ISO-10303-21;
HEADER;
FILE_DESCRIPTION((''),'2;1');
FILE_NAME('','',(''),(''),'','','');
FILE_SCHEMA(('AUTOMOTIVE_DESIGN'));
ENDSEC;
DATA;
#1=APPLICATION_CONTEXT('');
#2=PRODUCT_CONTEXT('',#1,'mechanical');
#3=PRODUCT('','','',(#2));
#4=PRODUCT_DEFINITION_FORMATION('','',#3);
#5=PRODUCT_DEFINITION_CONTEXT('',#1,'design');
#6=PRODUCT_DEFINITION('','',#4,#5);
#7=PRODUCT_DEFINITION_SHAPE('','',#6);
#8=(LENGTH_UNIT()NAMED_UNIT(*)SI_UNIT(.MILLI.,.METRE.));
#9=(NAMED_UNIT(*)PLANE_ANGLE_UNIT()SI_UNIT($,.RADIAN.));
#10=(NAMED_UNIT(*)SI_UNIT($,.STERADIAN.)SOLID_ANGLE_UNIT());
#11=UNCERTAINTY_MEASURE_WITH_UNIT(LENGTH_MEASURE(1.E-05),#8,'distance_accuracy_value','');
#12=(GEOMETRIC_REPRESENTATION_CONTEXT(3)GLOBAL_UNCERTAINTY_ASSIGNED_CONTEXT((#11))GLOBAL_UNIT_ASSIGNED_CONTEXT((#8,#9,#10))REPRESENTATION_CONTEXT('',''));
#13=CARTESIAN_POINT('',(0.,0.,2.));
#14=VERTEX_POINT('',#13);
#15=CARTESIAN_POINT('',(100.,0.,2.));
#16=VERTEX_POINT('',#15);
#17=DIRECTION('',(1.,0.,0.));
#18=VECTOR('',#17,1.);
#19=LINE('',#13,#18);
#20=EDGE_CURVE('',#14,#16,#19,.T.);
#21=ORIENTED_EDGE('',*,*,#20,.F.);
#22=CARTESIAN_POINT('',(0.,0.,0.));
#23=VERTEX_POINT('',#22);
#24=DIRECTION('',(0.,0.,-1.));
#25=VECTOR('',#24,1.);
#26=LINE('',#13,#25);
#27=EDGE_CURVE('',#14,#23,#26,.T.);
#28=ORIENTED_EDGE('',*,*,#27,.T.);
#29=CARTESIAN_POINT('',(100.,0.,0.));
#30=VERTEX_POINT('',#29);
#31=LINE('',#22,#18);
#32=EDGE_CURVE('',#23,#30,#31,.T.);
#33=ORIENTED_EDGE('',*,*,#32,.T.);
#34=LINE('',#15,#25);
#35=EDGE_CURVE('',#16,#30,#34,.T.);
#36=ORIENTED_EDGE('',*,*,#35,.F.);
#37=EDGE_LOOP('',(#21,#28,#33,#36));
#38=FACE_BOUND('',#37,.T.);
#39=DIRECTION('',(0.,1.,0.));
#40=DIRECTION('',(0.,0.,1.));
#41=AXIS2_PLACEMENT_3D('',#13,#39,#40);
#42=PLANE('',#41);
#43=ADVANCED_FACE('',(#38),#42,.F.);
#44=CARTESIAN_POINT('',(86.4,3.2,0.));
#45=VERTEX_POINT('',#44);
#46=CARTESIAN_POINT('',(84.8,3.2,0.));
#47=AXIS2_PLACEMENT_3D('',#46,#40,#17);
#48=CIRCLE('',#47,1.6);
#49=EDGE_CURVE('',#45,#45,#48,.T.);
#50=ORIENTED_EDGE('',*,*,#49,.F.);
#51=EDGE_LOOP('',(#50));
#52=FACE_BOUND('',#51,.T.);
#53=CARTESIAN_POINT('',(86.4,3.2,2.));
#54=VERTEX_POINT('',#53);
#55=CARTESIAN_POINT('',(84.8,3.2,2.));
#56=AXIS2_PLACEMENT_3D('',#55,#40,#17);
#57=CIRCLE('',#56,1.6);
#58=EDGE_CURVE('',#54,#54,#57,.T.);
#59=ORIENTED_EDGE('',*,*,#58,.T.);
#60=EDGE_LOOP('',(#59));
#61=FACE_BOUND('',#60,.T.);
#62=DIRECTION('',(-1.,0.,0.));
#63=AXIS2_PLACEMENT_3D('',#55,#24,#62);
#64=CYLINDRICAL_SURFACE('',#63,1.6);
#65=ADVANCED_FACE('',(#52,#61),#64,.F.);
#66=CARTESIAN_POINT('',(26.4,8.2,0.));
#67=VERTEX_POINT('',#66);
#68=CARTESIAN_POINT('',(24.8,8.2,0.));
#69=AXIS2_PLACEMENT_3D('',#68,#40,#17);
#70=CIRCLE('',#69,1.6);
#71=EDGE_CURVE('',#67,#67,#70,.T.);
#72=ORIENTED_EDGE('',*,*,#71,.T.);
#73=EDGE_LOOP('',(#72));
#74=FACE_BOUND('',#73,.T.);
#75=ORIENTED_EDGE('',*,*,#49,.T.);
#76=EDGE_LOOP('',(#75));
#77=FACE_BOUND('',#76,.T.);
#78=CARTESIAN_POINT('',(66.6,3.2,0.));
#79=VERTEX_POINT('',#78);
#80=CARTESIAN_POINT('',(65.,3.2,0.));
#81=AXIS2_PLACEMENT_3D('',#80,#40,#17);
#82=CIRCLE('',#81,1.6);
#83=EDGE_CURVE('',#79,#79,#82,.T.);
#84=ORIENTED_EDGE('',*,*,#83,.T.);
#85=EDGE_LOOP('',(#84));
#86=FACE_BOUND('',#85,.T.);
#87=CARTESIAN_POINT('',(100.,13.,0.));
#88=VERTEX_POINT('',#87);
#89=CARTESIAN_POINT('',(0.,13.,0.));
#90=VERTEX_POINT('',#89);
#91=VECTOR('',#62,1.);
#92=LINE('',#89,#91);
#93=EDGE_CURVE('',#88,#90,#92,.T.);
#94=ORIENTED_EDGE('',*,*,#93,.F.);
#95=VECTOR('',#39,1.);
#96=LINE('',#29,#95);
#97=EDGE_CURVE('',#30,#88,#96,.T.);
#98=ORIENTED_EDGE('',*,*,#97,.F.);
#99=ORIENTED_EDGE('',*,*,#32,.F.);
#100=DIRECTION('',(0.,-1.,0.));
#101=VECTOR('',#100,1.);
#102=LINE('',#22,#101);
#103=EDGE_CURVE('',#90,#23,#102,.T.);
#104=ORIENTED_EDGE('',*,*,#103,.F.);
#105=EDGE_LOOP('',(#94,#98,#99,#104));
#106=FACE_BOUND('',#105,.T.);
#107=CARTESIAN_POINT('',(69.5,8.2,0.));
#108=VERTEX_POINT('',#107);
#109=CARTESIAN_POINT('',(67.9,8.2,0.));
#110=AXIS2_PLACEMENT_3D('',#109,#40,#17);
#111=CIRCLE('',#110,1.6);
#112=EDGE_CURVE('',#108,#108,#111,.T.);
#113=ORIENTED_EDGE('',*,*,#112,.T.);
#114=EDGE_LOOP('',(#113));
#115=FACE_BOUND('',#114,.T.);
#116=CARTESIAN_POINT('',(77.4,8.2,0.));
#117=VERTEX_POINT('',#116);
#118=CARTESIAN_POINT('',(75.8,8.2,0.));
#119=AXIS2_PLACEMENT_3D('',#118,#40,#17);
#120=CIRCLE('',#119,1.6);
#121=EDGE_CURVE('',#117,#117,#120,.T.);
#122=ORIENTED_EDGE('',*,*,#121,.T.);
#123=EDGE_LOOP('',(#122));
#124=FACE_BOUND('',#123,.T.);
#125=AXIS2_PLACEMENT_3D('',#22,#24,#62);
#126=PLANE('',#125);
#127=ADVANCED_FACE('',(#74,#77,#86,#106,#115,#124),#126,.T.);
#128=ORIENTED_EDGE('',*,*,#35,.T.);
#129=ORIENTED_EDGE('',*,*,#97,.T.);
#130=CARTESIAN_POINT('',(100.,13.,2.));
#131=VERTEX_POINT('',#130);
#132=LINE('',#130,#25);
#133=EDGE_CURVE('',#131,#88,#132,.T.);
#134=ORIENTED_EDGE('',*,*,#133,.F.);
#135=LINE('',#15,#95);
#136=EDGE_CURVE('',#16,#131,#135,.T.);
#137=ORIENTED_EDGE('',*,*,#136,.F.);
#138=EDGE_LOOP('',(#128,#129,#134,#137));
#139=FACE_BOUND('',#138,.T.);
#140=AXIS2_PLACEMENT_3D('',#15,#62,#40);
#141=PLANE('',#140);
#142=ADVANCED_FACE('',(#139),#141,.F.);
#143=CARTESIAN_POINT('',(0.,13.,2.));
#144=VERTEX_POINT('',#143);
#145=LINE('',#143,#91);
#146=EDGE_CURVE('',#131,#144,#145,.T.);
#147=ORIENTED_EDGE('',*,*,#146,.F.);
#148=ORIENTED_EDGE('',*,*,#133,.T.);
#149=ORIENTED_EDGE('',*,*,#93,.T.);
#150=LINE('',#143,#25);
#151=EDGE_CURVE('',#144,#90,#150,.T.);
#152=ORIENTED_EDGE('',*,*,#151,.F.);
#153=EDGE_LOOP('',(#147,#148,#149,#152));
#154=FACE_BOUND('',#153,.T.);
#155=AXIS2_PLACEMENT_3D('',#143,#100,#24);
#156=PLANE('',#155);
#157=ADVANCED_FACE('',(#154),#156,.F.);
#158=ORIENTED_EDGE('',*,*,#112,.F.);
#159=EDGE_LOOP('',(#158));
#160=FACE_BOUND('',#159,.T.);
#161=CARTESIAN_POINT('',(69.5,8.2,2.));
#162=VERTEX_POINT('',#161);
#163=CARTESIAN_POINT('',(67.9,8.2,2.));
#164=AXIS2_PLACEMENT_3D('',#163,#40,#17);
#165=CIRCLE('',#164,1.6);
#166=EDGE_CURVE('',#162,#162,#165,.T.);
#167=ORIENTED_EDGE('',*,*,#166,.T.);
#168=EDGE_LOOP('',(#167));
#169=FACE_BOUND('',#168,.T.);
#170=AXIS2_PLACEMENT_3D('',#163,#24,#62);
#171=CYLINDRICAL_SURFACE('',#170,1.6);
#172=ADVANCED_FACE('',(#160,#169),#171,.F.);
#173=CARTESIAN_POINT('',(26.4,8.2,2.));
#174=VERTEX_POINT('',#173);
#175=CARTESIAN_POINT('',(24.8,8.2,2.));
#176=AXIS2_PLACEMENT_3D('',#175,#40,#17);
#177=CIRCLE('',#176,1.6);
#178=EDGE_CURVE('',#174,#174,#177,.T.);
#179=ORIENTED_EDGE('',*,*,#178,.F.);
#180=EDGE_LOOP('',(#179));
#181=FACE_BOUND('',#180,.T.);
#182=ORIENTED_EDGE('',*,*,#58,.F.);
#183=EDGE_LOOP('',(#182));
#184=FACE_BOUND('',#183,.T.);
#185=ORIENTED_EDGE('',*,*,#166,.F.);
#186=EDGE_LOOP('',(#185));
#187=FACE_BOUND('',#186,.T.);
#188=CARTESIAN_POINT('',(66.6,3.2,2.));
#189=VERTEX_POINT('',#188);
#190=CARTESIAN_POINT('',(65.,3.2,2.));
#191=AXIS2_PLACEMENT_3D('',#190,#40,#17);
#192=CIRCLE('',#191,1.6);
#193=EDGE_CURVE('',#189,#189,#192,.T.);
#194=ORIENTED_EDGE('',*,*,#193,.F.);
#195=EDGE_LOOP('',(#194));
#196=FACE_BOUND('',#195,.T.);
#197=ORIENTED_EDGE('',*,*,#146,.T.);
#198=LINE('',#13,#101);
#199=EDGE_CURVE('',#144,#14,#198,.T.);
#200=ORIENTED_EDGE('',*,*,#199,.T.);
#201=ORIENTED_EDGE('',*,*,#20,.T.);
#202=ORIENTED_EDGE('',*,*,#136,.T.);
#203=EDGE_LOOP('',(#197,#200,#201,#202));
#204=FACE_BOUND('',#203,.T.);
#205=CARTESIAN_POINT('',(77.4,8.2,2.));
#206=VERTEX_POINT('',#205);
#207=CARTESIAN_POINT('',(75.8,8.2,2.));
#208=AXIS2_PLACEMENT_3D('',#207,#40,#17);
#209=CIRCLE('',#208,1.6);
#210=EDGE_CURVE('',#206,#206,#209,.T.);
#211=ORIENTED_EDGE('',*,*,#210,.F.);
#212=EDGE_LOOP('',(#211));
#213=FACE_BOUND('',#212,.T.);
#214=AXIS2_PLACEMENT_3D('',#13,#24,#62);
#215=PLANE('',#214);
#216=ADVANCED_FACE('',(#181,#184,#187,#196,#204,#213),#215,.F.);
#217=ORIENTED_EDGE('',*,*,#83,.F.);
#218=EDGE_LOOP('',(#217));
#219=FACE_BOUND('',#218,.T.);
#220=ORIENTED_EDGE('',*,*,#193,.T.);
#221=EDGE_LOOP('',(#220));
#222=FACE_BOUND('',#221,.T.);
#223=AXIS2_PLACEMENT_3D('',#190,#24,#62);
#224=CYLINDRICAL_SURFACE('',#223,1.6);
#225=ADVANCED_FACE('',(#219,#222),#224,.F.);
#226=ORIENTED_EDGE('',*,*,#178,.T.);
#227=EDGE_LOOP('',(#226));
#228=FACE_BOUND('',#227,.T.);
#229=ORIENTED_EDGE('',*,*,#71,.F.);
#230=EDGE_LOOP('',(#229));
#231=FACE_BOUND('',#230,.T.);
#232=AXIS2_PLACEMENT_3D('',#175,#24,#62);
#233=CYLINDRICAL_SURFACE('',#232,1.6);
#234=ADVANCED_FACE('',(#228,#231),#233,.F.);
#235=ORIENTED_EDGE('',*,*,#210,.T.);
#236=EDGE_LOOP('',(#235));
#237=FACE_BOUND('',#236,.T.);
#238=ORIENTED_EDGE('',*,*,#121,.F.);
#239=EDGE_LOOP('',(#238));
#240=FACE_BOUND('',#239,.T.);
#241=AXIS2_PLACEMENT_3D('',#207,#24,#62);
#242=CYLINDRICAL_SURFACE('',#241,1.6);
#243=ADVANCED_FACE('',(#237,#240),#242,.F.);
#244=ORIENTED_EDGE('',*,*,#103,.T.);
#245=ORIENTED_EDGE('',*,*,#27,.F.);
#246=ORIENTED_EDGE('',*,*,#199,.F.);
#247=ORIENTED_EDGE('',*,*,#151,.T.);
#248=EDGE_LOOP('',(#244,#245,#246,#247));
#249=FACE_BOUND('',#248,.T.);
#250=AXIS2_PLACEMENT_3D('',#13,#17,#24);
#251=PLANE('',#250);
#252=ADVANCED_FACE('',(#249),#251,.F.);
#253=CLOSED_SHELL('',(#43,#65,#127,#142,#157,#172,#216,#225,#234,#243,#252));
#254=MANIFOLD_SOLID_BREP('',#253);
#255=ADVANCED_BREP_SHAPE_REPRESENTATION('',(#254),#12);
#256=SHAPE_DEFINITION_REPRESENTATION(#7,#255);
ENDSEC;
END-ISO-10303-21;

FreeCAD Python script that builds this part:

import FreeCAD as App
import Part
import Sketcher
from FreeCAD import Vector
Q = App.Units.Quantity

doc = App.newDocument("Part")
body = doc.addObject("PartDesign::Body", "Body")

# Sketch on XY plane
sketch1 = doc.addObject("Sketcher::SketchObject", "Sketch")
body.addObject(sketch1)
sketch1.AttachmentSupport = (doc.XY_Plane, [""])
sketch1.MapMode = "FlatFace"
sketch1.addGeometry(Part.LineSegment(Vector(0, 13, 0), Vector(0, 0, 0)), False)
sketch1.addGeometry(Part.LineSegment(Vector(0, 0, 0), Vector(100, 0, 0)), False)
sketch1.addGeometry(Part.LineSegment(Vector(100, 0, 0), Vector(100, 13, 0)), False)
sketch1.addGeometry(Part.LineSegment(Vector(100, 13, 0), Vector(0, 13, 0)), False)
sketch1.addGeometry(Part.Circle(Vector(65, 3.2, 0), Vector(0, 0, 1), 1.6), False)
sketch1.addGeometry(Part.Circle(Vector(84.8, 3.2, 0), Vector(0, 0, 1), 1.6), False)
sketch1.addGeometry(Part.Circle(Vector(24.8, 8.2, 0), Vector(0, 0, 1), 1.6), False)
sketch1.addGeometry(Part.Circle(Vector(67.9, 8.2, 0), Vector(0, 0, 1), 1.6), False)
sketch1.addGeometry(Part.Circle(Vector(75.8, 8.2, 0), Vector(0, 0, 1), 1.6), False)
sketch1.addConstraint(Sketcher.Constraint("Coincident", 0, 2, 1, 1))
sketch1.addConstraint(Sketcher.Constraint("Coincident", 1, 2, 2, 1))
sketch1.addConstraint(Sketcher.Constraint("Coincident", 2, 2, 3, 1))
sketch1.addConstraint(Sketcher.Constraint("Coincident", 3, 2, 0, 1))
sketch1.addConstraint(Sketcher.Constraint("Vertical", 0))
sketch1.addConstraint(Sketcher.Constraint("Horizontal", 1))
sketch1.addConstraint(Sketcher.Constraint("Vertical", 2))
sketch1.addConstraint(Sketcher.Constraint("Horizontal", 3))
sketch1.addConstraint(Sketcher.Constraint("Coincident", 0, 2, -1, 1))
sketch1.addConstraint(Sketcher.Constraint("Equal", 4, 5))
sketch1.addConstraint(Sketcher.Constraint("Equal", 5, 6))
sketch1.addConstraint(Sketcher.Constraint("Equal", 6, 7))
sketch1.addConstraint(Sketcher.Constraint("Equal", 7, 8))
sketch1.addConstraint(Sketcher.Constraint("Horizontal", 4, 3, 5, 3))
sketch1.addConstraint(Sketcher.Constraint("Horizontal", 6, 3, 7, 3))
sketch1.addConstraint(Sketcher.Constraint("Horizontal", 7, 3, 8, 3))
sketch1.addConstraint(Sketcher.Constraint("Diameter", 4, Q("3.2 mm")))
sketch1.addConstraint(Sketcher.Constraint("DistanceX", 1, 1, 1, 2, Q("100 mm")))
sketch1.addConstraint(Sketcher.Constraint("DistanceY", 0, 2, 0, 1, Q("13 mm")))
sketch1.addConstraint(Sketcher.Constraint("DistanceX", -1, 1, 4, 3, Q("65 mm")))
sketch1.addConstraint(Sketcher.Constraint("DistanceY", 4, 3, 6, 3, Q("5 mm")))
sketch1.addConstraint(Sketcher.Constraint("DistanceX", 6, 3, 5, 3, Q("60 mm")))
sketch1.addConstraint(Sketcher.Constraint("DistanceX", 8, 3, 5, 3, Q("9 mm")))
sketch1.addConstraint(Sketcher.Constraint("DistanceY", -1, 1, 4, 3, Q("3.2 mm")))
sketch1.addConstraint(Sketcher.Constraint("DistanceX", -1, 1, 5, 3, Q("84.8 mm")))
sketch1.addConstraint(Sketcher.Constraint("DistanceX", -1, 1, 7, 3, Q("67.9 mm")))
pad1 = doc.addObject("PartDesign::Pad", "Pad")
body.addObject(pad1)
pad1.Profile = sketch1
pad1.Length = 2

doc.recompute()
